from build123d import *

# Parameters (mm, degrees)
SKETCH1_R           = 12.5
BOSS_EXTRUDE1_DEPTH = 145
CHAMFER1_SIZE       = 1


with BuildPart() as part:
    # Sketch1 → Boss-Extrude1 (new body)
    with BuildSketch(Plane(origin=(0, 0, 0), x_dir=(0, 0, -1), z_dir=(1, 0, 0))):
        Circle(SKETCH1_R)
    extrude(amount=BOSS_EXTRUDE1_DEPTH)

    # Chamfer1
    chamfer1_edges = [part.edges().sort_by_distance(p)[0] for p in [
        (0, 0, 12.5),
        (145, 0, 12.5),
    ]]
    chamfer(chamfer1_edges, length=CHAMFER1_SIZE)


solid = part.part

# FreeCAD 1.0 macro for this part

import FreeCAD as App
import Part
import Sketcher
from FreeCAD import Vector
Q = App.Units.Quantity


def edges_at(feature, points):
    """Names of the edges that pass closest to the given points."""
    edges = feature.Shape.Edges
    near = lambda p: min(range(len(edges)), key=lambda i: edges[i].distToShape(Part.Vertex(*p))[0])
    return sorted({f"Edge{near(p) + 1}" for p in points})

doc = App.newDocument("Part")
body = doc.addObject("PartDesign::Body", "Body")

sketch1 = doc.addObject("Sketcher::SketchObject", "Sketch")
body.addObject(sketch1)
sketch1.AttachmentSupport = (doc.YZ_Plane, [""])
sketch1.MapMode = "FlatFace"
sketch1.addGeometry(Part.Circle(Vector(0, 0, 0), Vector(0, 0, 1), 12), False)
sketch1.addConstraint([
    Sketcher.Constraint("Coincident", 0, 3, -1, 1),
    Sketcher.Constraint("Diameter", 0, Q("25 mm")),
])
pad1 = doc.addObject("PartDesign::Pad", "Pad")
body.addObject(pad1)
pad1.Profile = sketch1
pad1.Length = 145
doc.recompute()

chamfer = doc.addObject("PartDesign::Chamfer", "Chamfer")
body.addObject(chamfer)
chamfer.Base = (pad1, edges_at(pad1, [(0, 0, 12.5), (145, 0, 12.5)]))
chamfer.Size = 1

doc.recompute()
